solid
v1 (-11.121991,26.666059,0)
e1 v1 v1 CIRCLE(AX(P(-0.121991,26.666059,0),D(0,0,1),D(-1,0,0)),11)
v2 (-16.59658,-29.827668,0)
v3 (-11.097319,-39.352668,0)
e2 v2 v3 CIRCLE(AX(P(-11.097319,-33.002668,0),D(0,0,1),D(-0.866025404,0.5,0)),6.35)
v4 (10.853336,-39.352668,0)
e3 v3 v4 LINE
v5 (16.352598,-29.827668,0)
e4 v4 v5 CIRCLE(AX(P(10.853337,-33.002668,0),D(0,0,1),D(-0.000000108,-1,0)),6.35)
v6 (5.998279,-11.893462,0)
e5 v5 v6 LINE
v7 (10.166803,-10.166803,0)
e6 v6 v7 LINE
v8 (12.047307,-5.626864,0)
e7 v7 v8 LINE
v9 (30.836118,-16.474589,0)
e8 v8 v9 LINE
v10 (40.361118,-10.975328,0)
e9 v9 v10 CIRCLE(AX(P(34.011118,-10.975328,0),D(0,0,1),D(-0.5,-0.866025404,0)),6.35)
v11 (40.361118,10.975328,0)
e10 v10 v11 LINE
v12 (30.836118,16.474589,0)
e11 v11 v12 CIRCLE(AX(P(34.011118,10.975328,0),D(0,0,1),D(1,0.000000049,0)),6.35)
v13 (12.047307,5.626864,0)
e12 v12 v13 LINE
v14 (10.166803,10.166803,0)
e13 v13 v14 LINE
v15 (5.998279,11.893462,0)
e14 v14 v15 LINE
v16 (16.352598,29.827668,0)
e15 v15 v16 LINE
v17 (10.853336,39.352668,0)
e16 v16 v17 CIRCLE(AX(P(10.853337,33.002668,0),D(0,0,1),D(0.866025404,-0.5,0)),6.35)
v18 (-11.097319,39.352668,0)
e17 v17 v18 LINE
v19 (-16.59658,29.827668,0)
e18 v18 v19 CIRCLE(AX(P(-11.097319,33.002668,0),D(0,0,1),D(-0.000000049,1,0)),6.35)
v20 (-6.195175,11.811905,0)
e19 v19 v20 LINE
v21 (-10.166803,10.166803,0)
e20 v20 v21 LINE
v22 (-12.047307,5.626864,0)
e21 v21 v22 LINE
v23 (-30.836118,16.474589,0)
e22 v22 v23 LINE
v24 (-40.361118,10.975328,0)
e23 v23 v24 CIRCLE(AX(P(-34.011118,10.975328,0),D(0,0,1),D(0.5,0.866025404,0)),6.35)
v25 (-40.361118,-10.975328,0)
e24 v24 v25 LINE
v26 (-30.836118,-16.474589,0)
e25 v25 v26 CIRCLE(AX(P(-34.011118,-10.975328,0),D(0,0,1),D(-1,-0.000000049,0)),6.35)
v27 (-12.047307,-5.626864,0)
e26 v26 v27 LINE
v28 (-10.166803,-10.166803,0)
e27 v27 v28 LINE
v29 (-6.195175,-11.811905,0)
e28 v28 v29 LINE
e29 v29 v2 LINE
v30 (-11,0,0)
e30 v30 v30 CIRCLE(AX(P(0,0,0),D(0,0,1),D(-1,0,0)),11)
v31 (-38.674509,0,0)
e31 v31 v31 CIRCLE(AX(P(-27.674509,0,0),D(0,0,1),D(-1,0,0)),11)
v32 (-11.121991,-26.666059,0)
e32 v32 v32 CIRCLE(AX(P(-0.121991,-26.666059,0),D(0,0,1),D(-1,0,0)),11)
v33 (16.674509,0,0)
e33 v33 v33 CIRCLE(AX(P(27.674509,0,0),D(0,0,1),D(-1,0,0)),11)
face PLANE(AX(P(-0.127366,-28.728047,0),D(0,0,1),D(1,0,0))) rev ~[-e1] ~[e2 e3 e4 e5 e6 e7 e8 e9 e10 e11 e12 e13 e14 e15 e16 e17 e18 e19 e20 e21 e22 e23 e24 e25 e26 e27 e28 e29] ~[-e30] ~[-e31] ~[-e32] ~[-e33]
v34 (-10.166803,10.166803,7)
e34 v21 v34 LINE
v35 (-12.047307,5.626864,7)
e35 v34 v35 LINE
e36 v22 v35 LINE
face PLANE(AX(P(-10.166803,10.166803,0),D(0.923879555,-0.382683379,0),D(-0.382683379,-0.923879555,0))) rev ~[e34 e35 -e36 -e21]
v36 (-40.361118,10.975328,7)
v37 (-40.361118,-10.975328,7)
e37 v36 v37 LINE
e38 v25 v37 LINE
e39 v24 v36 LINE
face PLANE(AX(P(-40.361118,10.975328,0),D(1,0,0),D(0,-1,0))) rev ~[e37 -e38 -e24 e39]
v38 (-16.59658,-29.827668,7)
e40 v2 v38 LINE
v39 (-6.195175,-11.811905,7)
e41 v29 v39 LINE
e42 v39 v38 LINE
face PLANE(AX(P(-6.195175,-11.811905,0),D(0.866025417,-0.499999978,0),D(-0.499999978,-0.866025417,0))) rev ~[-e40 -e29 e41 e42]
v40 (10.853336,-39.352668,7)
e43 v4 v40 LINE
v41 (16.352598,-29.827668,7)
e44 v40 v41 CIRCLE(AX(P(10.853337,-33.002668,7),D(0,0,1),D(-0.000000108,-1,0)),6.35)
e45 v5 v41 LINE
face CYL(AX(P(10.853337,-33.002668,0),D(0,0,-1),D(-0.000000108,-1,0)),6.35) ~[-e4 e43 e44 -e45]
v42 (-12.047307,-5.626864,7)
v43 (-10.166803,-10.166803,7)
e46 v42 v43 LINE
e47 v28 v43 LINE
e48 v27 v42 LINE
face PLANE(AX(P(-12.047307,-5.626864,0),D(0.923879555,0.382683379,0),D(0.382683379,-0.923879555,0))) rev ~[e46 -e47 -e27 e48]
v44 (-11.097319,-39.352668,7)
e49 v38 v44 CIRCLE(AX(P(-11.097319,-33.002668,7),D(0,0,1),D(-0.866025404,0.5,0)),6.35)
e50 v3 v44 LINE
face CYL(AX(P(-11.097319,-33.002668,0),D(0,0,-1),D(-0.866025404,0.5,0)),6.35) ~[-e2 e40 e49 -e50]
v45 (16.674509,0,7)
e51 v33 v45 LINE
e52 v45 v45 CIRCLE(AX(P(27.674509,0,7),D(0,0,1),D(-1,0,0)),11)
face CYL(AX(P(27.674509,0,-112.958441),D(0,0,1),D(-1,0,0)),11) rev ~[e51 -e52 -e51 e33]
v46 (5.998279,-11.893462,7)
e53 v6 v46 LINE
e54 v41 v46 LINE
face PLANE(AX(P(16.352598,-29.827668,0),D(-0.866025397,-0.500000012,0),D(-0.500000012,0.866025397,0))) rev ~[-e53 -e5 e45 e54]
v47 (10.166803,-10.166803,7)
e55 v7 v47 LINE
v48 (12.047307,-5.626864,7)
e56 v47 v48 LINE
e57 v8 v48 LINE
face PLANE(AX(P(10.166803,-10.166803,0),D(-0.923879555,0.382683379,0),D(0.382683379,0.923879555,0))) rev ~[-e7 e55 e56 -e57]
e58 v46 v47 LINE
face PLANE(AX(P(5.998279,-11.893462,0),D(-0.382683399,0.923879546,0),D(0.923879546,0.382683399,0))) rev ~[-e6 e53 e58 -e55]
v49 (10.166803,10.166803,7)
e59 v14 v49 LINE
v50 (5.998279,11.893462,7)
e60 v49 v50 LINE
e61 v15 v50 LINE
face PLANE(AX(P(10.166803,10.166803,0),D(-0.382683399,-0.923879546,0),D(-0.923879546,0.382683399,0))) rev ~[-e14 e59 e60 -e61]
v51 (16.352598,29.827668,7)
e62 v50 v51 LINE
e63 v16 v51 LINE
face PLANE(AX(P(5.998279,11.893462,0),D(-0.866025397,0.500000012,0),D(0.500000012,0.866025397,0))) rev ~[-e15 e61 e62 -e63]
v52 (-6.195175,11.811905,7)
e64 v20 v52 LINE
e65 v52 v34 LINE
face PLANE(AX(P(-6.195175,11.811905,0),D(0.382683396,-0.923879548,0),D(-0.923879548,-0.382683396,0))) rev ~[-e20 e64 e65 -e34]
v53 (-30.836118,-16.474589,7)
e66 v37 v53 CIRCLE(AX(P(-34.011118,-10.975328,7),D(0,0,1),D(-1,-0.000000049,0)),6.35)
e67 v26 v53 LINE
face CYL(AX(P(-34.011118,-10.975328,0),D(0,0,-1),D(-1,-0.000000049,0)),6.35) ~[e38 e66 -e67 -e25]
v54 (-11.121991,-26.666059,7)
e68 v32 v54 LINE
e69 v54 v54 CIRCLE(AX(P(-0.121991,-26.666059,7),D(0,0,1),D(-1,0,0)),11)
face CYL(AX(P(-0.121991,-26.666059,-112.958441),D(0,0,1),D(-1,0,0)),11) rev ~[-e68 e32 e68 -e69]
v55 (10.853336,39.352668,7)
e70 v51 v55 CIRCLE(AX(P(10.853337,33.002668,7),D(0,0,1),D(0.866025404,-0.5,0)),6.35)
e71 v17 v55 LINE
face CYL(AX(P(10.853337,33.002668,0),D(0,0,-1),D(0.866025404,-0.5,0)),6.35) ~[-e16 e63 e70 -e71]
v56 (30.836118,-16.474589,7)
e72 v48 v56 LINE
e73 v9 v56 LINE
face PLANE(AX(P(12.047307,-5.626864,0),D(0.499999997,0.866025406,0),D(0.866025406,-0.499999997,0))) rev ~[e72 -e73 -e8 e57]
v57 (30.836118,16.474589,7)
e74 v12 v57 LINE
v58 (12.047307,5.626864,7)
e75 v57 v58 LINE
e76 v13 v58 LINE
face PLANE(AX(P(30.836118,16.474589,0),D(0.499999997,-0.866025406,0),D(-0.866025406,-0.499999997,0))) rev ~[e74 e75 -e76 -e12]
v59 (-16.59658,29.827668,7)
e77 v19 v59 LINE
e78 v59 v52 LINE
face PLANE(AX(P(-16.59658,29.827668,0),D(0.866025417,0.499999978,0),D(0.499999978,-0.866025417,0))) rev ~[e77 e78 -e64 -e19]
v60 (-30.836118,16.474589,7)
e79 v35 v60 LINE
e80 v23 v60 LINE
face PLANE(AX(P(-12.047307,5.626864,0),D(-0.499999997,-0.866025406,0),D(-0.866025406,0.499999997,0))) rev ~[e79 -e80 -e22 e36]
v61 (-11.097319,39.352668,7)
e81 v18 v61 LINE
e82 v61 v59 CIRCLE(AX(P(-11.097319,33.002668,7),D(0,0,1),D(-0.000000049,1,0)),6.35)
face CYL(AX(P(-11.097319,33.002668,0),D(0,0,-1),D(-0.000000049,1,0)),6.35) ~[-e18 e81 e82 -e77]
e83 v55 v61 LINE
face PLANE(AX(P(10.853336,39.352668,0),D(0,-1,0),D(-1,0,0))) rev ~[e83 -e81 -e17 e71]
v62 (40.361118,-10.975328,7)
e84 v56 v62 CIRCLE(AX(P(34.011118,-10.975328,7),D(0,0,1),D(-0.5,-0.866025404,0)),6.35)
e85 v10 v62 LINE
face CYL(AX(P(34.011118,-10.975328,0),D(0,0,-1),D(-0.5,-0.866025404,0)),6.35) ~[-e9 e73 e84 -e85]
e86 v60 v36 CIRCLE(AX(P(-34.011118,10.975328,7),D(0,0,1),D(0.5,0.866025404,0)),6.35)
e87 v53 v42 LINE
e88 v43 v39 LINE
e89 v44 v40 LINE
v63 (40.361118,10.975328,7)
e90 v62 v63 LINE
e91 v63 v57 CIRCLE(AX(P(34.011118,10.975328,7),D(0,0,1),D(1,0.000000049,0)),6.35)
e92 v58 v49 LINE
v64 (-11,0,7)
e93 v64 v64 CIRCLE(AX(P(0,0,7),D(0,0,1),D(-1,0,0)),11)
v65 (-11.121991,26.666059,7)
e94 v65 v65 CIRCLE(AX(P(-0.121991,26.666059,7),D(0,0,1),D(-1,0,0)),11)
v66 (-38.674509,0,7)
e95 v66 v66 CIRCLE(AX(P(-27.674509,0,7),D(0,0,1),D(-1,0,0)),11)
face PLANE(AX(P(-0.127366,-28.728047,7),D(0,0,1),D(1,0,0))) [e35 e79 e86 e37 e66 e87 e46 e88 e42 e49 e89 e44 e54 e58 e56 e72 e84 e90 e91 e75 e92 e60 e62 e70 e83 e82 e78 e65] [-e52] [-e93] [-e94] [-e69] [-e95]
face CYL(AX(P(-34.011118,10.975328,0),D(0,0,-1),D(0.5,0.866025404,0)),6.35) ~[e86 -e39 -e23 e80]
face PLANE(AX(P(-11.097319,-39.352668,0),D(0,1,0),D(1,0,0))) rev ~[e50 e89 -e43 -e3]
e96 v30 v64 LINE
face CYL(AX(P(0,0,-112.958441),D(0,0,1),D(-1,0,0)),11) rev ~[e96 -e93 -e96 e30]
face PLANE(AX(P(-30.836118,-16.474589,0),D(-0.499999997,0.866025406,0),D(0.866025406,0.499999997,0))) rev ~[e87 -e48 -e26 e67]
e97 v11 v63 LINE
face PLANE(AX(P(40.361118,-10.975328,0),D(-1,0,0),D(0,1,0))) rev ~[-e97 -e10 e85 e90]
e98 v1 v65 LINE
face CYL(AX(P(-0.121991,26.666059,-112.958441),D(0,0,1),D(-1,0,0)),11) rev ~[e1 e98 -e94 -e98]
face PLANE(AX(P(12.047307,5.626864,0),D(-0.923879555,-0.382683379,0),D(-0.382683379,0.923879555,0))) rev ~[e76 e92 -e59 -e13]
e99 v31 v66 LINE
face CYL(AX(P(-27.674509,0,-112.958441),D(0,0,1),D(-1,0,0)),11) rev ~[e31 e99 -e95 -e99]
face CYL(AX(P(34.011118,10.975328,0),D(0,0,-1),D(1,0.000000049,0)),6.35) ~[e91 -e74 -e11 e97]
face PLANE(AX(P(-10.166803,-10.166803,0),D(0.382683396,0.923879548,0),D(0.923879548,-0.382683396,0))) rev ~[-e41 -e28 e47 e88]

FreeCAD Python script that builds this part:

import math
import FreeCAD as App
import Part
import Sketcher
from FreeCAD import Vector
Q = App.Units.Quantity

doc = App.newDocument("Part")
body = doc.addObject("PartDesign::Body", "Body")

# Sketch on XY plane
sketch1 = body.newObject("Sketcher::SketchObject", "Sketch")
sketch1.AttachmentSupport = (doc.getObject("XY_Plane"), [""])
sketch1.MapMode = "FlatFace"
sketch1.addGeometry([
    Part.LineSegment(Vector(16.4, -29.8, 0), Vector(6, -11.9, 0)),  # 0
    Part.LineSegment(Vector(6, -11.9, 0), Vector(10.2, -10.2, 0)),  # 1
    Part.LineSegment(Vector(10.2, -10.2, 0), Vector(12, -5.6, 0)),  # 2
    Part.LineSegment(Vector(12, -5.6, 0), Vector(30.8, -16.5, 0)),  # 3
    Part.ArcOfCircle(Part.Circle(Vector(34, -11, 0), Vector(0, 0, 1), 6.3), math.radians(-120), math.radians(0)),  # 4
    Part.LineSegment(Vector(40.4, -11, 0), Vector(40.4, 11, 0)),  # 5
    Part.ArcOfCircle(Part.Circle(Vector(34, 11, 0), Vector(0, 0, 1), 6.3), math.radians(0), math.radians(120)),  # 6
    Part.LineSegment(Vector(30.8, 16.5, 0), Vector(12, 5.6, 0)),  # 7
    Part.LineSegment(Vector(12, 5.6, 0), Vector(10.2, 10.2, 0)),  # 8
    Part.LineSegment(Vector(10.2, 10.2, 0), Vector(6, 11.9, 0)),  # 9
    Part.LineSegment(Vector(6, 11.9, 0), Vector(16.4, 29.8, 0)),  # 10
    Part.ArcOfCircle(Part.Circle(Vector(10.9, 33, 0), Vector(0, 0, 1), 6.3), math.radians(-30), math.radians(90)),  # 11
    Part.LineSegment(Vector(10.9, 39.4, 0), Vector(-11.1, 39.4, 0)),  # 12
    Part.ArcOfCircle(Part.Circle(Vector(-11.1, 33, 0), Vector(0, 0, 1), 6.3), math.radians(90), math.radians(210)),  # 13
    Part.LineSegment(Vector(-16.6, 29.8, 0), Vector(-6.2, 11.8, 0)),  # 14
    Part.LineSegment(Vector(-6.2, 11.8, 0), Vector(-10.2, 10.2, 0)),  # 15
    Part.LineSegment(Vector(-10.2, 10.2, 0), Vector(-12, 5.6, 0)),  # 16
    Part.LineSegment(Vector(-12, 5.6, 0), Vector(-30.8, 16.5, 0)),  # 17
    Part.ArcOfCircle(Part.Circle(Vector(-34, 11, 0), Vector(0, 0, 1), 6.3), math.radians(60), math.radians(180)),  # 18
    Part.LineSegment(Vector(-40.4, 11, 0), Vector(-40.4, -11, 0)),  # 19
    Part.ArcOfCircle(Part.Circle(Vector(-34, -11, 0), Vector(0, 0, 1), 6.3), math.radians(-180), math.radians(-60)),  # 20
    Part.LineSegment(Vector(-30.8, -16.5, 0), Vector(-12, -5.6, 0)),  # 21
    Part.LineSegment(Vector(-12, -5.6, 0), Vector(-10.2, -10.2, 0)),  # 22
    Part.LineSegment(Vector(-10.2, -10.2, 0), Vector(-6.2, -11.8, 0)),  # 23
    Part.LineSegment(Vector(-6.2, -11.8, 0), Vector(-16.6, -29.8, 0)),  # 24
    Part.ArcOfCircle(Part.Circle(Vector(-11.1, -33, 0), Vector(0, 0, 1), 6.3), math.radians(150), math.radians(270)),  # 25
    Part.LineSegment(Vector(-11.1, -39.4, 0), Vector(10.9, -39.4, 0)),  # 26
    Part.ArcOfCircle(Part.Circle(Vector(10.9, -33, 0), Vector(0, 0, 1), 6.3), math.radians(-90), math.radians(30)),  # 27
], False)
sketch1.addConstraint([
    Sketcher.Constraint("Coincident", 0, 2, 1, 1),
    Sketcher.Constraint("Coincident", 1, 2, 2, 1),
    Sketcher.Constraint("Coincident", 2, 2, 3, 1),
    Sketcher.Constraint("Tangent", 3, 2, 4, 1),
    Sketcher.Constraint("Tangent", 4, 2, 5, 1),
    Sketcher.Constraint("Tangent", 5, 2, 6, 1),
    Sketcher.Constraint("Tangent", 6, 2, 7, 1),
    Sketcher.Constraint("Coincident", 7, 2, 8, 1),
    Sketcher.Constraint("Coincident", 8, 2, 9, 1),
    Sketcher.Constraint("Coincident", 9, 2, 10, 1),
    Sketcher.Constraint("Tangent", 10, 2, 11, 1),
    Sketcher.Constraint("Tangent", 11, 2, 12, 1),
    Sketcher.Constraint("Tangent", 12, 2, 13, 1),
    Sketcher.Constraint("Tangent", 13, 2, 14, 1),
    Sketcher.Constraint("Coincident", 14, 2, 15, 1),
    Sketcher.Constraint("Coincident", 15, 2, 16, 1),
    Sketcher.Constraint("Coincident", 16, 2, 17, 1),
    Sketcher.Constraint("Tangent", 17, 2, 18, 1),
    Sketcher.Constraint("Tangent", 18, 2, 19, 1),
    Sketcher.Constraint("Tangent", 19, 2, 20, 1),
    Sketcher.Constraint("Tangent", 20, 2, 21, 1),
    Sketcher.Constraint("Coincident", 21, 2, 22, 1),
    Sketcher.Constraint("Coincident", 22, 2, 23, 1),
    Sketcher.Constraint("Coincident", 23, 2, 24, 1),
    Sketcher.Constraint("Tangent", 24, 2, 25, 1),
    Sketcher.Constraint("Tangent", 25, 2, 26, 1),
    Sketcher.Constraint("Tangent", 26, 2, 27, 1),
    Sketcher.Constraint("Tangent", 27, 2, 0, 1),
    Sketcher.Constraint("Vertical", 5),
    Sketcher.Constraint("Horizontal", 12),
    Sketcher.Constraint("Vertical", 19),
    Sketcher.Constraint("Horizontal", 26),
    Sketcher.Constraint("Equal", 4, 6),
    Sketcher.Constraint("Equal", 6, 11),
    Sketcher.Constraint("Equal", 11, 13),
    Sketcher.Constraint("Equal", 13, 18),
    Sketcher.Constraint("Equal", 18, 20),
    Sketcher.Constraint("Equal", 20, 25),
    Sketcher.Constraint("Equal", 25, 27),
    Sketcher.Constraint("Symmetric", 4, 3, 18, 3, -1, 1),
    Sketcher.Constraint("Symmetric", 1, 2, 15, 2, -1, 1),
    Sketcher.Constraint("Symmetric", 2, 2, 16, 2, -1, 1),
    Sketcher.Constraint("Symmetric", 6, 2, 20, 2, -1, 1),
    Sketcher.Constraint("Symmetric", 8, 2, 22, 2, -1, 1),
    Sketcher.Constraint("Symmetric", 8, 2, 15, 2, -2),
    Sketcher.Constraint("Symmetric", 7, 2, 16, 2, -2),
    Sketcher.Constraint("Symmetric", 13, 3, 25, 3, -1),
    Sketcher.Constraint("Symmetric", 0, 2, 9, 2, -1),
    Sketcher.Constraint("Symmetric", 14, 2, 23, 2, -1),
    Sketcher.Constraint("Perpendicular", 0, 7),
    Sketcher.Constraint("Perpendicular", 1, 8),
    Sketcher.Constraint("Perpendicular", 3, 10),
    Sketcher.Constraint("Perpendicular", 7, 14),
    Sketcher.Constraint("Perpendicular", 8, 15),
    Sketcher.Constraint("Perpendicular", 15, 22),
    Sketcher.Constraint("Perpendicular", 17, 24),
    Sketcher.Constraint("Equal", 26, 5),
    Sketcher.Constraint("Angle", 0, Q("120.000001 deg")),
    Sketcher.Constraint("Radius", 4, 6.35),
    Sketcher.Constraint("Angle", 1, Q("22.499998 deg")),
    Sketcher.Constraint("DistanceX", -1, 1, 10, 2, 16.352598),
    Sketcher.Constraint("DistanceX", 18, 3, 13, 3, 22.913799),
    Sketcher.Constraint("DistanceX", 12, 2, 9, 2, 17.095598),
    Sketcher.Constraint("DistanceY", 8, 2, 14, 2, 1.645102),
    Sketcher.Constraint("Distance", 3, 21.69545),
    Sketcher.Constraint("Distance", 14, 20.802811),
])
pad1 = body.newObject("PartDesign::Pad", "Pad")
pad1.Profile = sketch1
pad1.Length = 7

# Sketch on XY plane
sketch2 = body.newObject("Sketcher::SketchObject", "Sketch001")
sketch2.AttachmentSupport = (doc.getObject("XY_Plane"), [""])
sketch2.MapMode = "FlatFace"
sketch2.addGeometry([
    Part.Circle(Vector(-28, 0, 0), Vector(0, 0, 1), 11),  # 0
    Part.Circle(Vector(0, 27, 0), Vector(0, 0, 1), 11),  # 1
    Part.Circle(Vector(0, 0, 0), Vector(0, 0, 1), 11),  # 2
    Part.Circle(Vector(28, 0, 0), Vector(0, 0, 1), 11),  # 3
    Part.Circle(Vector(0, -27, 0), Vector(0, 0, 1), 11),  # 4
], False)
sketch2.addConstraint([
    Sketcher.Constraint("Coincident", 2, 3, -1, 1),
    Sketcher.Constraint("Equal", 0, 1),
    Sketcher.Constraint("Equal", 1, 2),
    Sketcher.Constraint("Equal", 2, 3),
    Sketcher.Constraint("Equal", 3, 4),
    Sketcher.Constraint("Symmetric", 0, 3, 3, 3, -1, 1),
    Sketcher.Constraint("Symmetric", 1, 3, 4, 3, -1),
    Sketcher.Constraint("PointOnObject", 0, 3, -1),
    Sketcher.Constraint("Diameter", 0, 22.0),
    Sketcher.Constraint("DistanceX", 1, 3, 3, 3, 27.7965),
    Sketcher.Constraint("DistanceX", 0, 3, -1, 1, 27.674509),
    Sketcher.Constraint("DistanceY", -1, 1, 1, 3, 26.666059),
])
doc.recompute()
hole = body.newObject("PartDesign::Hole", "Hole")
hole.Profile = sketch2
hole.ThreadType = "None"
hole.Diameter = 22
hole.DepthType = "ThroughAll"
hole.Reversed = True

doc.recompute()
